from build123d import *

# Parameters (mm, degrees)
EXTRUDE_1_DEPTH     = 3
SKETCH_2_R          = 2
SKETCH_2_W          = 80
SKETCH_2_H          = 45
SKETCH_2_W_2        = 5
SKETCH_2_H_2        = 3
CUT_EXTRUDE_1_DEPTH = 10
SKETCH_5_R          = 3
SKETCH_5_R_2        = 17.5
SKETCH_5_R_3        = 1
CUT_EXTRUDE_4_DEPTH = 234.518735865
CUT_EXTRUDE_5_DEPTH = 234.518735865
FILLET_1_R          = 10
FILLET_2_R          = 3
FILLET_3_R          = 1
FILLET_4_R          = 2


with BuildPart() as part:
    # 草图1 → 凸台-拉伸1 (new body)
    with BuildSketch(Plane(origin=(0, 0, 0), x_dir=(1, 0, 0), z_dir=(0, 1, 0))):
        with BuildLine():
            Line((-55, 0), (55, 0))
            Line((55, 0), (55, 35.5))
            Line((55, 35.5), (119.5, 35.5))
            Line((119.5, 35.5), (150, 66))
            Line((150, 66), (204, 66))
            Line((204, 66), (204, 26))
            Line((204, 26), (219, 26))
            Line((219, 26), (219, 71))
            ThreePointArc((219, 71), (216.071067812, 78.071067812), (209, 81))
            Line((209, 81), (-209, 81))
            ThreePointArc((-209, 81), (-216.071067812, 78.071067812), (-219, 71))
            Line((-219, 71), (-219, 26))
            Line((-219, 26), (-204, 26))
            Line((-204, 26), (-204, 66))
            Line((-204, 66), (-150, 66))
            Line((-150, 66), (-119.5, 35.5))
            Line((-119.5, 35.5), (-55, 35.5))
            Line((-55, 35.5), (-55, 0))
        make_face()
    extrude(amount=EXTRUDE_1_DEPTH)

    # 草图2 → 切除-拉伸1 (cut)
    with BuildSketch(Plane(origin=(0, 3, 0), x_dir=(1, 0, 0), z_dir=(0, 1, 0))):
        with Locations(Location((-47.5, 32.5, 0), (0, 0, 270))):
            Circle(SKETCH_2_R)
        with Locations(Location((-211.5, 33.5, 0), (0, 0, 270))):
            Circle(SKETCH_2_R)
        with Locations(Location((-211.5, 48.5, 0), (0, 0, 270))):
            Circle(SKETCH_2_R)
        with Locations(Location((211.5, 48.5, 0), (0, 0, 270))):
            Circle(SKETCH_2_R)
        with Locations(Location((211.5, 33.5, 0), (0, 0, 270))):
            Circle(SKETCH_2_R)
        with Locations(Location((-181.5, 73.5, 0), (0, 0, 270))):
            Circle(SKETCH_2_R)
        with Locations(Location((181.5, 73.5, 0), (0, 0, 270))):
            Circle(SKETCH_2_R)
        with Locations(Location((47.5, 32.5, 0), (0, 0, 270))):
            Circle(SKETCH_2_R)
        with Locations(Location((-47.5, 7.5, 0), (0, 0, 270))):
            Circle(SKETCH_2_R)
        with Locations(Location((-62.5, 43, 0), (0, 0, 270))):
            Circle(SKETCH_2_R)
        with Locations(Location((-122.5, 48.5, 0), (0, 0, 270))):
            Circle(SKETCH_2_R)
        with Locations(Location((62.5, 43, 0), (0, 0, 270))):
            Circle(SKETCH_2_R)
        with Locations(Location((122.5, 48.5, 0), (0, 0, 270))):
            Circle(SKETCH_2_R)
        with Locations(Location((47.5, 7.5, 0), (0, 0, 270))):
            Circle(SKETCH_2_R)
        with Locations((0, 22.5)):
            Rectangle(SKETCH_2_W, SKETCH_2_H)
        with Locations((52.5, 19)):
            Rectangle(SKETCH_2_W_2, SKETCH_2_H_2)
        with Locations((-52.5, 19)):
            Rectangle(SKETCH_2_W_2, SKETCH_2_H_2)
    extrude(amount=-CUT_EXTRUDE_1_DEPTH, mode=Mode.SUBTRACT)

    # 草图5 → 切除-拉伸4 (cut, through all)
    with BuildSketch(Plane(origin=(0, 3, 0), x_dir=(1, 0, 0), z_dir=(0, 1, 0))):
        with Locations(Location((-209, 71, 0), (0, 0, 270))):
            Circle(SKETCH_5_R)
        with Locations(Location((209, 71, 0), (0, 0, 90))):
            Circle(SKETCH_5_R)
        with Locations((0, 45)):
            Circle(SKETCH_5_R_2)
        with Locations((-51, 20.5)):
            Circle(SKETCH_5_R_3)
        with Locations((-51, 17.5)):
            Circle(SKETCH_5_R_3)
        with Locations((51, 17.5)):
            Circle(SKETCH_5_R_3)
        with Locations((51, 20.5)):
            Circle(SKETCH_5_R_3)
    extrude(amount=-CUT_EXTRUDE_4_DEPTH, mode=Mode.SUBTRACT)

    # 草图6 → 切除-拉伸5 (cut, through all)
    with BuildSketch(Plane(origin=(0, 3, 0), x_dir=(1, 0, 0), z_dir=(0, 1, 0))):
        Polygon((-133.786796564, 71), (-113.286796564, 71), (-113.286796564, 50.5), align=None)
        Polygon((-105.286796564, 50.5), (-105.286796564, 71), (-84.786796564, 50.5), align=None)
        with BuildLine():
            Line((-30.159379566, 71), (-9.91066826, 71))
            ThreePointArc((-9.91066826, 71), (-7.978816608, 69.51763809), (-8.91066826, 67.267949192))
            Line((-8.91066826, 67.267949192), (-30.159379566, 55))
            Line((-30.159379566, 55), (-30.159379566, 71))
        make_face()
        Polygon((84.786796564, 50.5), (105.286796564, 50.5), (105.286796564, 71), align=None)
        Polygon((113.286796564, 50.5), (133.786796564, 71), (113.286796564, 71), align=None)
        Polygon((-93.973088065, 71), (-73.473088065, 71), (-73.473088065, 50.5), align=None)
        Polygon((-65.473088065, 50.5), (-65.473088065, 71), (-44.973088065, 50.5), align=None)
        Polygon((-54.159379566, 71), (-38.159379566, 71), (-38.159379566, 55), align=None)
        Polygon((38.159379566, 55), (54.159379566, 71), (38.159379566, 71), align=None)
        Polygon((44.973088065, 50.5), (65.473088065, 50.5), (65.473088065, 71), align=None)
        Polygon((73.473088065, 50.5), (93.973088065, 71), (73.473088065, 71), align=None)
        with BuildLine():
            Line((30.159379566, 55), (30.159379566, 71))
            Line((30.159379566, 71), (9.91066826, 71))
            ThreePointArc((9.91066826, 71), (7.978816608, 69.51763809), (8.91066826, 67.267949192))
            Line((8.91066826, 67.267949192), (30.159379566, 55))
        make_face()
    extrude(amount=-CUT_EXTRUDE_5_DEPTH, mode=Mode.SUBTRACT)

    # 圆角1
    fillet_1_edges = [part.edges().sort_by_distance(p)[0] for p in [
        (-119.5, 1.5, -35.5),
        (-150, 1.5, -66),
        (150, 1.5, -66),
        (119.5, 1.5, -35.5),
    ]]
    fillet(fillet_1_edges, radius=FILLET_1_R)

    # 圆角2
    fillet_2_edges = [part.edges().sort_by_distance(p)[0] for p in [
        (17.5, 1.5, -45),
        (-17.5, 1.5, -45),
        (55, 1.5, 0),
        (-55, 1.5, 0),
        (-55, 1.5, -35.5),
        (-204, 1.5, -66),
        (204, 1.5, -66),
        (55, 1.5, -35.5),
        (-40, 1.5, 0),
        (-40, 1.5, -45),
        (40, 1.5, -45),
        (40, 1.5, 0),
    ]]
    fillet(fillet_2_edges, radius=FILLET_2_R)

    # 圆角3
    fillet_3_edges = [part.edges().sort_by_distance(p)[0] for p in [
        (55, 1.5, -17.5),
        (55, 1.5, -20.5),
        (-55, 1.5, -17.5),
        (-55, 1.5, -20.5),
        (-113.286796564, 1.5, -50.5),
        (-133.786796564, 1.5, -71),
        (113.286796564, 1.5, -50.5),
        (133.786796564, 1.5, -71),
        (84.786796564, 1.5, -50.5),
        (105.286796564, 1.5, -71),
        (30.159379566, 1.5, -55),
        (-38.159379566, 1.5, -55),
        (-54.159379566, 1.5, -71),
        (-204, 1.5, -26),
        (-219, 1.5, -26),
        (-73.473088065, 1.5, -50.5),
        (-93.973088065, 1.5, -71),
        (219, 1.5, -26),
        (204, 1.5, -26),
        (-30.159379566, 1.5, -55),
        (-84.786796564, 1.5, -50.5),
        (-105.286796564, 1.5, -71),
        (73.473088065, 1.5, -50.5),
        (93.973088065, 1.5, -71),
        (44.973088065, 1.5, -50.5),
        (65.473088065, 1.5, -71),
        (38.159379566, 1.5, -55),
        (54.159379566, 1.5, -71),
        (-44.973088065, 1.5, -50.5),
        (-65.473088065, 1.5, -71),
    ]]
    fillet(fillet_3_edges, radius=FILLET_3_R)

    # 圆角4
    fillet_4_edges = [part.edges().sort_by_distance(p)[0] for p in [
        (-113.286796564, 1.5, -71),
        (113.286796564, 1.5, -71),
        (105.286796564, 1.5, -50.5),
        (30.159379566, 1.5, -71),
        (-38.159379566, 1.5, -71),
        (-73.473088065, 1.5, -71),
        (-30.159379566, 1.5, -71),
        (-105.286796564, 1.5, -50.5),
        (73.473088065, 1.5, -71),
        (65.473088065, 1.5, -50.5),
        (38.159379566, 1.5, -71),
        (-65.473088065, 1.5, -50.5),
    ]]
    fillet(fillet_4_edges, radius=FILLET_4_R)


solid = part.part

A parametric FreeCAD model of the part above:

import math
import FreeCAD as App
import Part
import Sketcher

V = App.Vector
Q = App.Units.Quantity


def edges_at(feature, points):
    """Names of the edges that pass closest to the given points."""
    edges = feature.Shape.Edges
    near = lambda p: min(range(len(edges)), key=lambda i: edges[i].distToShape(Part.Vertex(*p))[0])
    return sorted({f"Edge{near(p) + 1}" for p in points})


def add_polygon(sketch, points):
    """Adds a closed chain of lines whose ends are joined by coincident constraints."""
    first, n = sketch.GeometryCount, len(points)
    for a, b in zip(points, points[1:] + points[:1]):
        sketch.addGeometry(Part.LineSegment(App.Vector(*a, 0), App.Vector(*b, 0)), False)
    for i in range(n):
        sketch.addConstraint(Sketcher.Constraint("Coincident", first + i, 2, first + (i + 1) % n, 1))

doc = App.newDocument("Part")
body = doc.addObject("PartDesign::Body", "Body")

# Sketch on XZ plane
sketch1 = body.newObject("Sketcher::SketchObject", "Sketch")
sketch1.AttachmentSupport = (doc.getObject("XZ_Plane"), [""])
sketch1.MapMode = "FlatFace"
sketch1.addGeometry(Part.LineSegment(V(-55, 0, 0), V(55, 0, 0)), False)
sketch1.addGeometry(Part.LineSegment(V(55, 0, 0), V(55, -36, 0)), False)
sketch1.addGeometry(Part.LineSegment(V(55, -36, 0), V(120, -36, 0)), False)
sketch1.addGeometry(Part.LineSegment(V(120, -36, 0), V(150, -66, 0)), False)
sketch1.addGeometry(Part.LineSegment(V(150, -66, 0), V(204, -66, 0)), False)
sketch1.addGeometry(Part.LineSegment(V(204, -66, 0), V(204, -26, 0)), False)
sketch1.addGeometry(Part.LineSegment(V(204, -26, 0), V(219, -26, 0)), False)
sketch1.addGeometry(Part.LineSegment(V(219, -26, 0), V(219, -71, 0)), False)
sketch1.addGeometry(Part.ArcOfCircle(Part.Circle(V(209, -71, 0), V(0, 0, 1), 10), math.radians(-90), math.radians(0)), False)
sketch1.addGeometry(Part.LineSegment(V(209, -81, 0), V(-209, -81, 0)), False)
sketch1.addGeometry(Part.ArcOfCircle(Part.Circle(V(-209, -71, 0), V(0, 0, 1), 10), math.radians(180), math.radians(270)), False)
sketch1.addGeometry(Part.LineSegment(V(-219, -71, 0), V(-219, -26, 0)), False)
sketch1.addGeometry(Part.LineSegment(V(-219, -26, 0), V(-204, -26, 0)), False)
sketch1.addGeometry(Part.LineSegment(V(-204, -26, 0), V(-204, -66, 0)), False)
sketch1.addGeometry(Part.LineSegment(V(-204, -66, 0), V(-150, -66, 0)), False)
sketch1.addGeometry(Part.LineSegment(V(-150, -66, 0), V(-120, -36, 0)), False)
sketch1.addGeometry(Part.LineSegment(V(-120, -36, 0), V(-55, -36, 0)), False)
sketch1.addGeometry(Part.LineSegment(V(-55, -36, 0), V(-55, 0, 0)), False)
sketch1.addConstraint(Sketcher.Constraint("Coincident", 0, 2, 1, 1))
sketch1.addConstraint(Sketcher.Constraint("Coincident", 1, 2, 2, 1))
sketch1.addConstraint(Sketcher.Constraint("Coincident", 2, 2, 3, 1))
sketch1.addConstraint(Sketcher.Constraint("Coincident", 3, 2, 4, 1))
sketch1.addConstraint(Sketcher.Constraint("Coincident", 4, 2, 5, 1))
sketch1.addConstraint(Sketcher.Constraint("Coincident", 5, 2, 6, 1))
sketch1.addConstraint(Sketcher.Constraint("Coincident", 6, 2, 7, 1))
sketch1.addConstraint(Sketcher.Constraint("Tangent", 7, 2, 8, 2))
sketch1.addConstraint(Sketcher.Constraint("Tangent", 8, 1, 9, 1))
sketch1.addConstraint(Sketcher.Constraint("Tangent", 9, 2, 10, 2))
sketch1.addConstraint(Sketcher.Constraint("Tangent", 10, 1, 11, 1))
sketch1.addConstraint(Sketcher.Constraint("Coincident", 11, 2, 12, 1))
sketch1.addConstraint(Sketcher.Constraint("Coincident", 12, 2, 13, 1))
sketch1.addConstraint(Sketcher.Constraint("Coincident", 13, 2, 14, 1))
sketch1.addConstraint(Sketcher.Constraint("Coincident", 14, 2, 15, 1))
sketch1.addConstraint(Sketcher.Constraint("Coincident", 15, 2, 16, 1))
sketch1.addConstraint(Sketcher.Constraint("Coincident", 16, 2, 17, 1))
sketch1.addConstraint(Sketcher.Constraint("Coincident", 17, 2, 0, 1))
sketch1.addConstraint(Sketcher.Constraint("Horizontal", 0))
sketch1.addConstraint(Sketcher.Constraint("Vertical", 1))
sketch1.addConstraint(Sketcher.Constraint("Horizontal", 2))
sketch1.addConstraint(Sketcher.Constraint("Horizontal", 4))
sketch1.addConstraint(Sketcher.Constraint("Vertical", 5))
sketch1.addConstraint(Sketcher.Constraint("Horizontal", 6))
sketch1.addConstraint(Sketcher.Constraint("Vertical", 7))
sketch1.addConstraint(Sketcher.Constraint("Horizontal", 9))
sketch1.addConstraint(Sketcher.Constraint("Vertical", 11))
sketch1.addConstraint(Sketcher.Constraint("Horizontal", 12))
sketch1.addConstraint(Sketcher.Constraint("Vertical", 13))
sketch1.addConstraint(Sketcher.Constraint("Horizontal", 14))
sketch1.addConstraint(Sketcher.Constraint("Horizontal", 16))
sketch1.addConstraint(Sketcher.Constraint("Vertical", 17))
sketch1.addConstraint(Sketcher.Constraint("Equal", 8, 10))
sketch1.addConstraint(Sketcher.Constraint("Symmetric", 0, 2, 17, 2, -1, 1))
sketch1.addConstraint(Sketcher.Constraint("Symmetric", 6, 2, 11, 2, -2))
sketch1.addConstraint(Sketcher.Constraint("Symmetric", 4, 2, 13, 2, -2))
sketch1.addConstraint(Sketcher.Constraint("Symmetric", 2, 2, 15, 2, -2))
sketch1.addConstraint(Sketcher.Constraint("Perpendicular", 3, 15))
sketch1.addConstraint(Sketcher.Constraint("Equal", 4, 14))
sketch1.addConstraint(Sketcher.Constraint("Radius", 8, 10.0))
sketch1.addConstraint(Sketcher.Constraint("DistanceX", 0, 1, 0, 2, 110.0))
sketch1.addConstraint(Sketcher.Constraint("DistanceX", 4, 1, 4, 2, 54.0))
sketch1.addConstraint(Sketcher.Constraint("DistanceX", 6, 1, 6, 2, 15.0))
sketch1.addConstraint(Sketcher.Constraint("DistanceX", 9, 2, 9, 1, 418.0))
sketch1.addConstraint(Sketcher.Constraint("DistanceY", 5, 1, 5, 2, 40.0))
sketch1.addConstraint(Sketcher.Constraint("DistanceY", 7, 2, 7, 1, 45.0))
sketch1.addConstraint(Sketcher.Constraint("DistanceX", 2, 1, 2, 2, 64.5))
sketch1.addConstraint(Sketcher.Constraint("DistanceY", 1, 2, 1, 1, 35.5))
pad1 = body.newObject("PartDesign::Pad", "Pad")
pad1.Profile = sketch1
pad1.Length = 3
pad1.Reversed = True

# Sketch on XZ plane
sketch2 = body.newObject("Sketcher::SketchObject", "Sketch001")
sketch2.AttachmentSupport = (doc.getObject("XZ_Plane"), [""])
sketch2.MapMode = "FlatFace"
sketch2.AttachmentOffset = App.Placement(V(0, 0, -3), App.Rotation())
sketch2.addGeometry(Part.Circle(V(-47.5, -32.5, 0), V(0, 0, 1), 2), False)  # 0
sketch2.addGeometry(Part.Circle(V(-211.5, -33.5, 0), V(0, 0, 1), 2), False)  # 1
sketch2.addGeometry(Part.Circle(V(-211.5, -48.5, 0), V(0, 0, 1), 2), False)  # 2
sketch2.addGeometry(Part.Circle(V(211.5, -48.5, 0), V(0, 0, 1), 2), False)  # 3
sketch2.addGeometry(Part.Circle(V(211.5, -33.5, 0), V(0, 0, 1), 2), False)  # 4
sketch2.addGeometry(Part.Circle(V(-181.5, -73.5, 0), V(0, 0, 1), 2), False)  # 5
sketch2.addGeometry(Part.Circle(V(181.5, -73.5, 0), V(0, 0, 1), 2), False)  # 6
sketch2.addGeometry(Part.Circle(V(47.5, -32.5, 0), V(0, 0, 1), 2), False)  # 7
sketch2.addGeometry(Part.Circle(V(-47.5, -7.5, 0), V(0, 0, 1), 2), False)  # 8
sketch2.addGeometry(Part.Circle(V(-62.5, -43, 0), V(0, 0, 1), 2), False)  # 9
sketch2.addGeometry(Part.Circle(V(-122.5, -48.5, 0), V(0, 0, 1), 2), False)  # 10
sketch2.addGeometry(Part.Circle(V(62.5, -43, 0), V(0, 0, 1), 2), False)  # 11
sketch2.addGeometry(Part.Circle(V(122.5, -48.5, 0), V(0, 0, 1), 2), False)  # 12
sketch2.addGeometry(Part.Circle(V(47.5, -7.5, 0), V(0, 0, 1), 2), False)  # 13
add_polygon(sketch2, [(-40, -45), (-40, 0), (40, 0), (40, -45)])  # lines 14-17
add_polygon(sketch2, [(50, -20.5), (50, -17.5), (55, -17.5), (55, -20.5)])  # lines 18-21
add_polygon(sketch2, [(-55, -20.5), (-55, -17.5), (-50, -17.5), (-50, -20.5)])  # lines 22-25
sketch2.addConstraint(Sketcher.Constraint("Vertical", 14))
sketch2.addConstraint(Sketcher.Constraint("Horizontal", 15))
sketch2.addConstraint(Sketcher.Constraint("Vertical", 16))
sketch2.addConstraint(Sketcher.Constraint("Horizontal", 17))
sketch2.addConstraint(Sketcher.Constraint("Vertical", 18))
sketch2.addConstraint(Sketcher.Constraint("Horizontal", 19))
sketch2.addConstraint(Sketcher.Constraint("Vertical", 20))
sketch2.addConstraint(Sketcher.Constraint("Horizontal", 21))
sketch2.addConstraint(Sketcher.Constraint("Vertical", 22))
sketch2.addConstraint(Sketcher.Constraint("Horizontal", 23))
sketch2.addConstraint(Sketcher.Constraint("Vertical", 24))
sketch2.addConstraint(Sketcher.Constraint("Horizontal", 25))
sketch2.addConstraint(Sketcher.Constraint("Equal", 0, 1))
sketch2.addConstraint(Sketcher.Constraint("Equal", 1, 2))
sketch2.addConstraint(Sketcher.Constraint("Equal", 2, 3))
sketch2.addConstraint(Sketcher.Constraint("Equal", 3, 4))
sketch2.addConstraint(Sketcher.Constraint("Equal", 4, 5))
sketch2.addConstraint(Sketcher.Constraint("Equal", 5, 6))
sketch2.addConstraint(Sketcher.Constraint("Equal", 6, 7))
sketch2.addConstraint(Sketcher.Constraint("Equal", 7, 8))
sketch2.addConstraint(Sketcher.Constraint("Equal", 8, 9))
sketch2.addConstraint(Sketcher.Constraint("Equal", 9, 10))
sketch2.addConstraint(Sketcher.Constraint("Equal", 10, 11))
sketch2.addConstraint(Sketcher.Constraint("Equal", 11, 12))
sketch2.addConstraint(Sketcher.Constraint("Equal", 12, 13))
sketch2.addConstraint(Sketcher.Constraint("Symmetric", 14, 2, 15, 2, -1, 1))
sketch2.addConstraint(Sketcher.Constraint("Symmetric", 2, 3, 3, 3, -2))
sketch2.addConstraint(Sketcher.Constraint("Symmetric", 1, 3, 4, 3, -2))
sketch2.addConstraint(Sketcher.Constraint("Symmetric", 5, 3, 6, 3, -2))
sketch2.addConstraint(Sketcher.Constraint("Symmetric", 0, 3, 7, 3, -2))
sketch2.addConstraint(Sketcher.Constraint("Symmetric", 9, 3, 11, 3, -2))
sketch2.addConstraint(Sketcher.Constraint("Symmetric", 10, 3, 12, 3, -2))
sketch2.addConstraint(Sketcher.Constraint("Symmetric", 8, 3, 13, 3, -2))
sketch2.addConstraint(Sketcher.Constraint("Symmetric", 19, 2, 22, 2, -2))
sketch2.addConstraint(Sketcher.Constraint("Symmetric", 21, 2, 24, 2, -2))
sketch2.addConstraint(Sketcher.Constraint("Horizontal", 3, 3, 10, 3))
sketch2.addConstraint(Sketcher.Constraint("Vertical", 1, 3, 2, 3))
sketch2.addConstraint(Sketcher.Constraint("Vertical", 0, 3, 8, 3))
sketch2.addConstraint(Sketcher.Constraint("Diameter", 0, 4.0))
sketch2.addConstraint(Sketcher.Constraint("DistanceX", 15, 1, 15, 2, 80.0))
sketch2.addConstraint(Sketcher.Constraint("DistanceX", 19, 1, 19, 2, 5.0))
sketch2.addConstraint(Sketcher.Constraint("DistanceY", 14, 1, 14, 2, 45.0))
sketch2.addConstraint(Sketcher.Constraint("DistanceY", 18, 1, 18, 2, 3.0))
sketch2.addConstraint(Sketcher.Constraint("DistanceY", 9, 3, -1, 1, 43.0))
sketch2.addConstraint(Sketcher.Constraint("DistanceX", -1, 1, 18, 2, 50.0))
sketch2.addConstraint(Sketcher.Constraint("DistanceX", 1, 3, 0, 3, 164.0))
sketch2.addConstraint(Sketcher.Constraint("DistanceY", 1, 3, 0, 3, 1.0))
sketch2.addConstraint(Sketcher.Constraint("DistanceY", 2, 3, 1, 3, 15.0))
sketch2.addConstraint(Sketcher.Constraint("DistanceX", 0, 3, 3, 3, 259.0))
sketch2.addConstraint(Sketcher.Constraint("DistanceX", 2, 3, 5, 3, 30.0))
sketch2.addConstraint(Sketcher.Constraint("DistanceY", 5, 3, 2, 3, 25.0))
sketch2.addConstraint(Sketcher.Constraint("DistanceY", 0, 3, 8, 3, 25.0))
sketch2.addConstraint(Sketcher.Constraint("DistanceX", 9, 3, 0, 3, 15.0))
sketch2.addConstraint(Sketcher.Constraint("DistanceX", 10, 3, 9, 3, 60.0))
sketch2.addConstraint(Sketcher.Constraint("DistanceY", 18, 2, 13, 3, 10.0))
sketch2.addConstraint(Sketcher.Constraint("DistanceY", 0, 3, -1, 1, 32.5))
pocket1 = body.newObject("PartDesign::Pocket", "Pocket")
pocket1.Profile = sketch2
pocket1.Length = 10
pocket1.Reversed = True

# Sketch on XZ plane
sketch3 = body.newObject("Sketcher::SketchObject", "Sketch002")
sketch3.AttachmentSupport = (doc.getObject("XZ_Plane"), [""])
sketch3.MapMode = "FlatFace"
sketch3.AttachmentOffset = App.Placement(V(0, 0, -3), App.Rotation())
sketch3.addGeometry(Part.Circle(V(-209, -71, 0), V(0, 0, 1), 3), False)
sketch3.addGeometry(Part.Circle(V(209, -71, 0), V(0, 0, 1), 3), False)
sketch3.addGeometry(Part.Circle(V(0, -45, 0), V(0, 0, 1), 17.5), False)
sketch3.addGeometry(Part.Circle(V(-51, -20.5, 0), V(0, 0, 1), 1), False)
sketch3.addGeometry(Part.Circle(V(-51, -17.5, 0), V(0, 0, 1), 1), False)
sketch3.addGeometry(Part.Circle(V(51, -17.5, 0), V(0, 0, 1), 1), False)
sketch3.addGeometry(Part.Circle(V(51, -20.5, 0), V(0, 0, 1), 1), False)
sketch3.addConstraint(Sketcher.Constraint("Equal", 0, 1))
sketch3.addConstraint(Sketcher.Constraint("Equal", 3, 4))
sketch3.addConstraint(Sketcher.Constraint("Equal", 4, 5))
sketch3.addConstraint(Sketcher.Constraint("Equal", 5, 6))
sketch3.addConstraint(Sketcher.Constraint("Symmetric", 0, 3, 1, 3, -2))
sketch3.addConstraint(Sketcher.Constraint("Symmetric", 4, 3, 5, 3, -2))
sketch3.addConstraint(Sketcher.Constraint("Symmetric", 3, 3, 6, 3, -2))
sketch3.addConstraint(Sketcher.Constraint("PointOnObject", 2, 3, -2))
sketch3.addConstraint(Sketcher.Constraint("Vertical", 3, 3, 4, 3))
sketch3.addConstraint(Sketcher.Constraint("Diameter", 0, 6.0))
sketch3.addConstraint(Sketcher.Constraint("Diameter", 2, 35.0))
sketch3.addConstraint(Sketcher.Constraint("Diameter", 3, 2.0))
sketch3.addConstraint(Sketcher.Constraint("DistanceX", 0, 3, -1, 1, 209.0))
sketch3.addConstraint(Sketcher.Constraint("DistanceY", 0, 3, -1, 1, 71.0))
sketch3.addConstraint(Sketcher.Constraint("DistanceY", 2, 3, -1, 1, 45.0))
sketch3.addConstraint(Sketcher.Constraint("DistanceX", 3, 3, -1, 1, 51.0))
sketch3.addConstraint(Sketcher.Constraint("DistanceY", 3, 3, 4, 3, 3.0))
sketch3.addConstraint(Sketcher.Constraint("DistanceY", 3, 3, -1, 1, 20.5))
pocket2 = body.newObject("PartDesign::Pocket", "Pocket001")
pocket2.Profile = sketch3
pocket2.Type = "ThroughAll"
pocket2.Reversed = True

# Sketch on XZ plane
sketch4 = body.newObject("Sketcher::SketchObject", "Sketch003")
sketch4.AttachmentSupport = (doc.getObject("XZ_Plane"), [""])
sketch4.MapMode = "FlatFace"
sketch4.AttachmentOffset = App.Placement(V(0, 0, -3), App.Rotation())
add_polygon(sketch4, [(-113.3, -71), (-133.8, -71), (-113.3, -50.5)])  # lines 0-2
add_polygon(sketch4, [(-105.3, -71), (-105.3, -50.5), (-84.8, -50.5)])  # lines 3-5
sketch4.addGeometry(Part.LineSegment(V(-9.9, -71, 0), V(-30.2, -71, 0)), False)  # 6
sketch4.addGeometry(Part.LineSegment(V(-30.2, -71, 0), V(-30.2, -55, 0)), False)  # 7
sketch4.addGeometry(Part.LineSegment(V(-30.2, -55, 0), V(-8.9, -67.3, 0)), False)  # 8
sketch4.addGeometry(Part.ArcOfCircle(Part.Circle(V(-9.9, -69, 0), V(0, 0, 1), 2), math.radians(-90), math.radians(60)), False)  # 9
add_polygon(sketch4, [(84.8, -50.5), (105.3, -50.5), (105.3, -71)])  # lines 10-12
add_polygon(sketch4, [(113.3, -50.5), (133.8, -71), (113.3, -71)])  # lines 13-15
add_polygon(sketch4, [(-73.5, -71), (-94, -71), (-73.5, -50.5)])  # lines 16-18
add_polygon(sketch4, [(-65.5, -71), (-65.5, -50.5), (-45, -50.5)])  # lines 19-21
add_polygon(sketch4, [(-38.2, -71), (-54.2, -71), (-38.2, -55)])  # lines 22-24
add_polygon(sketch4, [(38.2, -55), (54.2, -71), (38.2, -71)])  # lines 25-27
add_polygon(sketch4, [(45, -50.5), (65.5, -50.5), (65.5, -71)])  # lines 28-30
add_polygon(sketch4, [(73.5, -50.5), (94, -71), (73.5, -71)])  # lines 31-33
sketch4.addGeometry(Part.LineSegment(V(30.2, -55, 0), V(30.2, -71, 0)), False)  # 34
sketch4.addGeometry(Part.LineSegment(V(30.2, -71, 0), V(9.9, -71, 0)), False)  # 35
sketch4.addGeometry(Part.ArcOfCircle(Part.Circle(V(9.9, -69, 0), V(0, 0, 1), 2), math.radians(120), math.radians(270)), False)  # 36
sketch4.addGeometry(Part.LineSegment(V(8.9, -67.3, 0), V(30.2, -55, 0)), False)  # 37
sketch4.addConstraint(Sketcher.Constraint("Coincident", 6, 2, 7, 1))
sketch4.addConstraint(Sketcher.Constraint("Coincident", 7, 2, 8, 1))
sketch4.addConstraint(Sketcher.Constraint("Tangent", 8, 2, 9, 2))
sketch4.addConstraint(Sketcher.Constraint("Tangent", 9, 1, 6, 1))
sketch4.addConstraint(Sketcher.Constraint("Coincident", 34, 2, 35, 1))
sketch4.addConstraint(Sketcher.Constraint("Tangent", 35, 2, 36, 2))
sketch4.addConstraint(Sketcher.Constraint("Tangent", 36, 1, 37, 1))
sketch4.addConstraint(Sketcher.Constraint("Coincident", 37, 2, 34, 1))
sketch4.addConstraint(Sketcher.Constraint("Horizontal", 0))
sketch4.addConstraint(Sketcher.Constraint("Vertical", 2))
sketch4.addConstraint(Sketcher.Constraint("Vertical", 3))
sketch4.addConstraint(Sketcher.Constraint("Horizontal", 4))
sketch4.addConstraint(Sketcher.Constraint("Horizontal", 6))
sketch4.addConstraint(Sketcher.Constraint("Vertical", 7))
sketch4.addConstraint(Sketcher.Constraint("Horizontal", 10))
sketch4.addConstraint(Sketcher.Constraint("Vertical", 11))
sketch4.addConstraint(Sketcher.Constraint("Horizontal", 14))
sketch4.addConstraint(Sketcher.Constraint("Vertical", 15))
sketch4.addConstraint(Sketcher.Constraint("Horizontal", 16))
sketch4.addConstraint(Sketcher.Constraint("Vertical", 18))
sketch4.addConstraint(Sketcher.Constraint("Vertical", 19))
sketch4.addConstraint(Sketcher.Constraint("Horizontal", 20))
sketch4.addConstraint(Sketcher.Constraint("Horizontal", 22))
sketch4.addConstraint(Sketcher.Constraint("Vertical", 24))
sketch4.addConstraint(Sketcher.Constraint("Horizontal", 26))
sketch4.addConstraint(Sketcher.Constraint("Vertical", 27))
sketch4.addConstraint(Sketcher.Constraint("Horizontal", 28))
sketch4.addConstraint(Sketcher.Constraint("Vertical", 29))
sketch4.addConstraint(Sketcher.Constraint("Horizontal", 32))
sketch4.addConstraint(Sketcher.Constraint("Vertical", 33))
sketch4.addConstraint(Sketcher.Constraint("Vertical", 34))
sketch4.addConstraint(Sketcher.Constraint("Horizontal", 35))
sketch4.addConstraint(Sketcher.Constraint("Equal", 9, 36))
sketch4.addConstraint(Sketcher.Constraint("Symmetric", 9, 3, 36, 3, -2))
sketch4.addConstraint(Sketcher.Constraint("Symmetric", 3, 2, 10, 2, -2))
sketch4.addConstraint(Sketcher.Constraint("Symmetric", 0, 2, 13, 2, -2))
sketch4.addConstraint(Sketcher.Constraint("Symmetric", 1, 2, 15, 2, -2))
sketch4.addConstraint(Sketcher.Constraint("Symmetric", 22, 2, 25, 2, -2))
sketch4.addConstraint(Sketcher.Constraint("Symmetric", 23, 2, 27, 2, -2))
sketch4.addConstraint(Sketcher.Constraint("Symmetric", 19, 2, 28, 2, -2))
sketch4.addConstraint(Sketcher.Constraint("Symmetric", 16, 2, 31, 2, -2))
sketch4.addConstraint(Sketcher.Constraint("Symmetric", 17, 2, 33, 2, -2))
sketch4.addConstraint(Sketcher.Constraint("Symmetric", 7, 2, 37, 2, -2))
sketch4.addConstraint(Sketcher.Constraint("Parallel", 1, 5))
sketch4.addConstraint(Sketcher.Constraint("Perpendicular", 5, 12))
sketch4.addConstraint(Sketcher.Constraint("Parallel", 12, 13))
sketch4.addConstraint(Sketcher.Constraint("Perpendicular", 13, 17))
sketch4.addConstraint(Sketcher.Constraint("Parallel", 17, 21))
sketch4.addConstraint(Sketcher.Constraint("Parallel", 21, 23))
sketch4.addConstraint(Sketcher.Constraint("Parallel", 25, 30))
sketch4.addConstraint(Sketcher.Constraint("Horizontal", 1, 2, 3, 2))
sketch4.addConstraint(Sketcher.Constraint("Horizontal", 2, 2, 5, 2))
sketch4.addConstraint(Sketcher.Constraint("Horizontal", 5, 2, 6, 2))
sketch4.addConstraint(Sketcher.Constraint("Horizontal", 9, 1, 11, 2))
sketch4.addConstraint(Sketcher.Constraint("Horizontal", 14, 2, 16, 2))
sketch4.addConstraint(Sketcher.Constraint("Horizontal", 15, 2, 17, 2))
sketch4.addConstraint(Sketcher.Constraint("Horizontal", 17, 2, 19, 2))
sketch4.addConstraint(Sketcher.Constraint("Horizontal", 18, 2, 21, 2))
sketch4.addConstraint(Sketcher.Constraint("Horizontal", 21, 2, 22, 2))
sketch4.addConstraint(Sketcher.Constraint("Horizontal", 7, 2, 23, 2))
sketch4.addConstraint(Sketcher.Constraint("Horizontal", 26, 2, 29, 2))
sketch4.addConstraint(Sketcher.Constraint("Radius", 9, 2.0))
sketch4.addConstraint(Sketcher.Constraint("DistanceX", 22, 2, 22, 1, 16.0))
sketch4.addConstraint(Sketcher.Constraint("Angle", 8, Q("-30 deg")))
sketch4.addConstraint(Sketcher.Constraint("DistanceX", 0, 2, 0, 1, 20.5))
sketch4.addConstraint(Sketcher.Constraint("DistanceY", 9, 3, -1, 1, 69.0))
sketch4.addConstraint(Sketcher.Constraint("DistanceX", 1, 2, 3, 2, 8.0))
sketch4.addConstraint(Sketcher.Constraint("DistanceX", 17, 2, 19, 2, 8.0))
sketch4.addConstraint(Sketcher.Constraint("DistanceX", 22, 2, 6, 2, 24.0))
sketch4.addConstraint(Sketcher.Constraint("DistanceX", 9, 3, -1, 1, 9.910668))
sketch4.addConstraint(Sketcher.Constraint("DistanceX", 16, 2, -1, 1, 93.973088))
sketch4.addConstraint(Sketcher.Constraint("DistanceX", 0, 2, 9, 3, 123.876128))
pocket3 = body.newObject("PartDesign::Pocket", "Pocket002")
pocket3.Profile = sketch4
pocket3.Type = "ThroughAll"
pocket3.Reversed = True
doc.recompute()

fillet = body.newObject("PartDesign::Fillet", "Fillet")
fillet.Base = (pocket3, edges_at(pocket3, [
    (-119.5, 1.5, -35.5),
    (-150, 1.5, -66),
    (150, 1.5, -66),
    (119.5, 1.5, -35.5),
]))
fillet.Radius = 10
doc.recompute()

fillet2 = body.newObject("PartDesign::Fillet", "Fillet001")
fillet2.Base = (fillet, edges_at(fillet, [
    (17.5, 1.5, -45),
    (-17.5, 1.5, -45),
    (55, 1.5, 0),
    (-55, 1.5, 0),
    (-55, 1.5, -35.5),
    (-204, 1.5, -66),
    (204, 1.5, -66),
    (55, 1.5, -35.5),
    (-40, 1.5, 0),
    (-40, 1.5, -45),
    (40, 1.5, -45),
    (40, 1.5, 0),
]))
fillet2.Radius = 3
doc.recompute()

fillet3 = body.newObject("PartDesign::Fillet", "Fillet002")
fillet3.Base = (fillet2, edges_at(fillet2, [
    (55, 1.5, -17.5),
    (55, 1.5, -20.5),
    (-55, 1.5, -17.5),
    (-55, 1.5, -20.5),
    (-113.287, 1.5, -50.5),
    (-133.787, 1.5, -71),
    (113.287, 1.5, -50.5),
    (133.787, 1.5, -71),
    (84.787, 1.5, -50.5),
    (105.287, 1.5, -71),
    (30.159, 1.5, -55),
    (-38.159, 1.5, -55),
    (-54.159, 1.5, -71),
    (-204, 1.5, -26),
    (-219, 1.5, -26),
    (-73.473, 1.5, -50.5),
    (-93.973, 1.5, -71),
    (219, 1.5, -26),
    (204, 1.5, -26),
    (-30.159, 1.5, -55),
    (-84.787, 1.5, -50.5),
    (-105.287, 1.5, -71),
    (73.473, 1.5, -50.5),
    (93.973, 1.5, -71),
    (44.973, 1.5, -50.5),
    (65.473, 1.5, -71),
    (38.159, 1.5, -55),
    (54.159, 1.5, -71),
    (-44.973, 1.5, -50.5),
    (-65.473, 1.5, -71),
]))
fillet3.Radius = 1
doc.recompute()

fillet4 = body.newObject("PartDesign::Fillet", "Fillet003")
fillet4.Base = (fillet3, edges_at(fillet3, [
    (-113.287, 1.5, -71),
    (113.287, 1.5, -71),
    (105.287, 1.5, -50.5),
    (30.159, 1.5, -71),
    (-38.159, 1.5, -71),
    (-73.473, 1.5, -71),
    (-30.159, 1.5, -71),
    (-105.287, 1.5, -50.5),
    (73.473, 1.5, -71),
    (65.473, 1.5, -50.5),
    (38.159, 1.5, -71),
    (-65.473, 1.5, -50.5),
]))
fillet4.Radius = 2

doc.recompute()
